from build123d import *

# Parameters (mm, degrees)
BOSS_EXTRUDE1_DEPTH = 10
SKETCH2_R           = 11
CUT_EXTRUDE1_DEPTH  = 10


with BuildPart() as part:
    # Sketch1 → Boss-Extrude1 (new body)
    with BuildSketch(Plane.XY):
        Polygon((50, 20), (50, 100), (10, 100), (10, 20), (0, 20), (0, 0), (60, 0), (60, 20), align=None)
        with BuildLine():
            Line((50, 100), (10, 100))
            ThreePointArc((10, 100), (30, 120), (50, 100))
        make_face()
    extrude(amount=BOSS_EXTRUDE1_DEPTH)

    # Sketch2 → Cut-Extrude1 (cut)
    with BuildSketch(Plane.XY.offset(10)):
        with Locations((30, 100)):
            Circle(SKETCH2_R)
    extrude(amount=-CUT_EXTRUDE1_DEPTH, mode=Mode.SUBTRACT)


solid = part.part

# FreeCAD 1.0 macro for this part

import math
import FreeCAD as App
import Part
import Sketcher

doc = App.newDocument("Part")
body = doc.addObject("PartDesign::Body", "Body")

sketch1 = body.newObject("Sketcher::SketchObject", "Sketch")
sketch1.AttachmentSupport = (doc.getObject("XY_Plane"), [""])
sketch1.MapMode = "FlatFace"
sketch1.addGeometry([
    Part.LineSegment(App.Vector(50, 20, 0), App.Vector(50, 100, 0)),
    Part.ArcOfCircle(Part.Circle(App.Vector(30, 100, 0), App.Vector(0, 0, 1), 20), math.radians(0), math.radians(180)),
    Part.LineSegment(App.Vector(10, 100, 0), App.Vector(10, 20, 0)),
    Part.LineSegment(App.Vector(10, 20, 0), App.Vector(0, 20, 0)),
    Part.LineSegment(App.Vector(0, 20, 0), App.Vector(0, 0, 0)),
    Part.LineSegment(App.Vector(0, 0, 0), App.Vector(60, 0, 0)),
    Part.LineSegment(App.Vector(60, 0, 0), App.Vector(60, 20, 0)),
    Part.LineSegment(App.Vector(60, 20, 0), App.Vector(50, 20, 0)),
], False)
sketch1.addConstraint([
    Sketcher.Constraint("Tangent", 0, 2, 1, 1),
    Sketcher.Constraint("Tangent", 1, 2, 2, 1),
    Sketcher.Constraint("Coincident", 2, 2, 3, 1),
    Sketcher.Constraint("Coincident", 3, 2, 4, 1),
    Sketcher.Constraint("Coincident", 4, 2, 5, 1),
    Sketcher.Constraint("Coincident", 5, 2, 6, 1),
    Sketcher.Constraint("Coincident", 6, 2, 7, 1),
    Sketcher.Constraint("Coincident", 7, 2, 0, 1),
    Sketcher.Constraint("Vertical", 0),
    Sketcher.Constraint("Vertical", 2),
    Sketcher.Constraint("Horizontal", 3),
    Sketcher.Constraint("Vertical", 4),
    Sketcher.Constraint("Horizontal", 5),
    Sketcher.Constraint("Vertical", 6),
    Sketcher.Constraint("Horizontal", 7),
    Sketcher.Constraint("Coincident", 4, 2, -1, 1),
    Sketcher.Constraint("Horizontal", 3, 2, 6, 2),
    Sketcher.Constraint("Equal", 3, 7),
    Sketcher.Constraint("Radius", 1, 20.0),
    Sketcher.Constraint("DistanceX", 3, 2, 3, 1, 10.0),
    Sketcher.Constraint("DistanceY", 0, 1, 0, 2, 80.0),
    Sketcher.Constraint("DistanceY", 4, 2, 4, 1, 20.0),
])
pad1 = body.newObject("PartDesign::Pad", "Pad")
pad1.Profile = sketch1
pad1.Length = 10

sketch2 = body.newObject("Sketcher::SketchObject", "Sketch001")
sketch2.AttachmentSupport = (doc.getObject("XY_Plane"), [""])
sketch2.MapMode = "FlatFace"
sketch2.AttachmentOffset = App.Placement(App.Vector(0, 0, 10), App.Rotation())
sketch2.addGeometry(Part.Circle(App.Vector(30, 100, 0), App.Vector(0, 0, 1), 11), False)
sketch2.addConstraint([
    Sketcher.Constraint("Diameter", 0, 22.0),
    Sketcher.Constraint("DistanceX", -1, 1, 0, 3, 30.0),
    Sketcher.Constraint("DistanceY", -1, 1, 0, 3, 100.0),
])
pocket1 = body.newObject("PartDesign::Pocket", "Pocket")
pocket1.Profile = sketch2
pocket1.Length = 10

doc.recompute()
